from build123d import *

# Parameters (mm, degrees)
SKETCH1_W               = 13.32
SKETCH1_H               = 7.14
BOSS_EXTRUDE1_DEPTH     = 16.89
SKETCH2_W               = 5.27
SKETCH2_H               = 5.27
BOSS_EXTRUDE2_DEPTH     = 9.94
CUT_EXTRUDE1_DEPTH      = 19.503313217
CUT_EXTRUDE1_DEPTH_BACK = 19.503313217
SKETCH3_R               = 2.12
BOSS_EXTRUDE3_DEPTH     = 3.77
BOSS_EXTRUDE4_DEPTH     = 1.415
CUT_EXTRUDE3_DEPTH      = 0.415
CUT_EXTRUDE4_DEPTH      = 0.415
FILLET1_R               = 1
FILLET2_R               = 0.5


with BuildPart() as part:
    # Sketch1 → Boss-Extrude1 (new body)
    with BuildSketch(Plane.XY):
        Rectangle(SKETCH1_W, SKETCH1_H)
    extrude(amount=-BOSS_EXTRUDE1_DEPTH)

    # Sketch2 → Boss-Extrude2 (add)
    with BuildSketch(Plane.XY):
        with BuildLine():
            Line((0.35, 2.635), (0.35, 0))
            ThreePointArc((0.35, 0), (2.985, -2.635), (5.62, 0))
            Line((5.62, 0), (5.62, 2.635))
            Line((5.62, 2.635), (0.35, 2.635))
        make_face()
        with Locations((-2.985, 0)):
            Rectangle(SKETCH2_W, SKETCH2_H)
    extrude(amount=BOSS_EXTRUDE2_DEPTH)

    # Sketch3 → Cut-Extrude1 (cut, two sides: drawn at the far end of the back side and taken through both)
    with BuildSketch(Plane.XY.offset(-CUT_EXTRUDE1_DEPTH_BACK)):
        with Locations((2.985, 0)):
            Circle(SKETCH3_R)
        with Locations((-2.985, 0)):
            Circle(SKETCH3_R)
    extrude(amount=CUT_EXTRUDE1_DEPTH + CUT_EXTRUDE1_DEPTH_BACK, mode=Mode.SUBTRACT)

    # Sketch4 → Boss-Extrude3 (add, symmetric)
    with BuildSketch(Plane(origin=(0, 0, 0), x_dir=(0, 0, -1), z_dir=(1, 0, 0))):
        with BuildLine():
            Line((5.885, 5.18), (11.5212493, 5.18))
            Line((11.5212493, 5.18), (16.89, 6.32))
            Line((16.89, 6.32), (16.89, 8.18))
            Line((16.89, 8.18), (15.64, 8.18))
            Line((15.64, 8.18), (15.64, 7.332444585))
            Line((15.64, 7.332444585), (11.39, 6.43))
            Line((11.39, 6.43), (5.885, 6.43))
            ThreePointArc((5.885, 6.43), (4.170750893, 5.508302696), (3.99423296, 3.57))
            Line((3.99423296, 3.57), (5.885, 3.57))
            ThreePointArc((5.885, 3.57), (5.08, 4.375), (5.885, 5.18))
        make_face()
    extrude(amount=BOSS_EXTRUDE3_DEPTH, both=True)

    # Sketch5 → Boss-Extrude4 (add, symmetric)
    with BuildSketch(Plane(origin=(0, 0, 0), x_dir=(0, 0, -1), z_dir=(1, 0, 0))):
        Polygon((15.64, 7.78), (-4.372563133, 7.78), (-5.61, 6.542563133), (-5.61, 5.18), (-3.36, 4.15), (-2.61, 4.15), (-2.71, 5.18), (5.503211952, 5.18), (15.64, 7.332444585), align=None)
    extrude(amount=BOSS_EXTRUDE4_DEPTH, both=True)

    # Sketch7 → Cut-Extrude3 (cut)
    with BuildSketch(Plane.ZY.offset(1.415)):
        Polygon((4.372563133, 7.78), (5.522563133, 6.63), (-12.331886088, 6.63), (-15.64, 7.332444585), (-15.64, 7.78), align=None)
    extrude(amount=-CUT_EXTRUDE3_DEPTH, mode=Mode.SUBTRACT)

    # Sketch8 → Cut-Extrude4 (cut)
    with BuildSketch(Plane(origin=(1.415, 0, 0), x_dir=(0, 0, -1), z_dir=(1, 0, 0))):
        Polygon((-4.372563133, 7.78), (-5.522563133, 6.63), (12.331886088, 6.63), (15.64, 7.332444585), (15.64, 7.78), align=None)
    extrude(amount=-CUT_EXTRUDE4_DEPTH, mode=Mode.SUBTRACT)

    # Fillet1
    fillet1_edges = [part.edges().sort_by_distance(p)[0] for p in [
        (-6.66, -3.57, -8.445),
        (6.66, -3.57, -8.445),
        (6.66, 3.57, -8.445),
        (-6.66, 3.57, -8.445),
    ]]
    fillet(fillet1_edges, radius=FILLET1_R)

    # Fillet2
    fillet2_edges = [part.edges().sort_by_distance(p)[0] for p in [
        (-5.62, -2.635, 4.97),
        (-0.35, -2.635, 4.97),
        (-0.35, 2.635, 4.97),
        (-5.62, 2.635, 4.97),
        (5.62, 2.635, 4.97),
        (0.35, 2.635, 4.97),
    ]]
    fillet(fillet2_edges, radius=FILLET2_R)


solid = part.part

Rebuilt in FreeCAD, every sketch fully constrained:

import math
import FreeCAD as App
import Part
import Sketcher

V = App.Vector
Q = App.Units.Quantity


def edges_at(feature, points):
    """Names of the edges that pass closest to the given points."""
    edges = feature.Shape.Edges
    near = lambda p: min(range(len(edges)), key=lambda i: edges[i].distToShape(Part.Vertex(*p))[0])
    return sorted({f"Edge{near(p) + 1}" for p in points})


def add_polygon(sketch, points):
    """Adds a closed chain of lines whose ends are joined by coincident constraints."""
    first, n = sketch.GeometryCount, len(points)
    for a, b in zip(points, points[1:] + points[:1]):
        sketch.addGeometry(Part.LineSegment(App.Vector(*a, 0), App.Vector(*b, 0)), False)
    for i in range(n):
        sketch.addConstraint(Sketcher.Constraint("Coincident", first + i, 2, first + (i + 1) % n, 1))

doc = App.newDocument("Part")
params = doc.addObject("Spreadsheet::Sheet", "Params")
for row, (alias, value) in enumerate([
    ("sketch1_width", "13.32 mm"),
    ("sketch1_height", "7.14 mm"),
    ("pad1_length", "16.89 mm"),
    ("pad2_length", "9.94 mm"),
    ("sketch3_diameter", "4.24 mm"),
    ("sketch4_width", "1.86 mm"),
    ("sketch4_height", "1.25 mm"),
    ("pad3_length", "7.54 mm"),
    ("sketch5_height", "0.75 mm"),
    ("sketch5_length", "1.75 mm"),
    ("pad4_length", "2.83 mm"),
    ("pocket2_length", "0.415 mm"),
    ("pocket3_length", "0.415 mm"),
    ("fillet_radius", "1 mm"),
    ("fillet2_radius", "0.5 mm"),
], start=1):
    params.set(f"A{row}", alias)
    params.set(f"B{row}", "=" + value)
    params.setAlias(f"B{row}", alias)

body = doc.addObject("PartDesign::Body", "Body")

# Sketch on XY plane
sketch1 = body.newObject("Sketcher::SketchObject", "Sketch")
sketch1.AttachmentSupport = (doc.getObject("XY_Plane"), [""])
sketch1.MapMode = "FlatFace"
add_polygon(sketch1, [(-7, 4), (-7, -4), (7, -4), (7, 4)])  # lines 0-3
sketch1.addConstraint(Sketcher.Constraint("Vertical", 0))
sketch1.addConstraint(Sketcher.Constraint("Horizontal", 1))
sketch1.addConstraint(Sketcher.Constraint("Vertical", 2))
sketch1.addConstraint(Sketcher.Constraint("Horizontal", 3))
sketch1.addConstraint(Sketcher.Constraint("Symmetric", 0, 2, 2, 2, -1, 1))
sketch1.addConstraint(Sketcher.Constraint("DistanceX", 1, 1, 1, 2, 13.32))
sketch1.addConstraint(Sketcher.Constraint("DistanceY", 0, 2, 0, 1, 7.14))
sketch1.setExpression("Constraints[9]", "Params.sketch1_width")
sketch1.setExpression("Constraints[10]", "Params.sketch1_height")
pad1 = body.newObject("PartDesign::Pad", "Pad")
pad1.Profile = sketch1
pad1.setExpression("Length", "Params.pad1_length")
pad1.Reversed = True

# Sketch on XY plane
sketch2 = body.newObject("Sketcher::SketchObject", "Sketch001")
sketch2.AttachmentSupport = (doc.getObject("XY_Plane"), [""])
sketch2.MapMode = "FlatFace"
sketch2.addGeometry(Part.LineSegment(V(0.3, 2.6, 0), V(0.3, 0, 0)), False)  # 0
sketch2.addGeometry(Part.ArcOfCircle(Part.Circle(V(3, 0, 0), V(0, 0, 1), 2.6), math.radians(180), math.radians(360)), False)  # 1
sketch2.addGeometry(Part.LineSegment(V(5.6, 0, 0), V(5.6, 2.6, 0)), False)  # 2
sketch2.addGeometry(Part.LineSegment(V(5.6, 2.6, 0), V(0.3, 2.6, 0)), False)  # 3
add_polygon(sketch2, [(-5.6, 2.6), (-5.6, -2.6), (-0.3, -2.6), (-0.3, 2.6)])  # lines 4-7
sketch2.addConstraint(Sketcher.Constraint("Tangent", 0, 2, 1, 1))
sketch2.addConstraint(Sketcher.Constraint("Tangent", 1, 2, 2, 1))
sketch2.addConstraint(Sketcher.Constraint("Coincident", 2, 2, 3, 1))
sketch2.addConstraint(Sketcher.Constraint("Coincident", 3, 2, 0, 1))
sketch2.addConstraint(Sketcher.Constraint("Vertical", 0))
sketch2.addConstraint(Sketcher.Constraint("Vertical", 2))
sketch2.addConstraint(Sketcher.Constraint("Horizontal", 3))
sketch2.addConstraint(Sketcher.Constraint("Vertical", 4))
sketch2.addConstraint(Sketcher.Constraint("Horizontal", 5))
sketch2.addConstraint(Sketcher.Constraint("Vertical", 6))
sketch2.addConstraint(Sketcher.Constraint("Horizontal", 7))
sketch2.addConstraint(Sketcher.Constraint("Symmetric", 2, 2, 4, 2, -1, 1))
sketch2.addConstraint(Sketcher.Constraint("Symmetric", 3, 2, 6, 2, -2))
sketch2.addConstraint(Sketcher.Constraint("PointOnObject", 1, 3, -1))
sketch2.addConstraint(Sketcher.Constraint("Equal", 7, 4))
sketch2.addConstraint(Sketcher.Constraint("Radius", 1, 2.635))
sketch2.addConstraint(Sketcher.Constraint("DistanceX", 5, 2, 0, 2, 0.7))
pad2 = body.newObject("PartDesign::Pad", "Pad001")
pad2.Profile = sketch2
pad2.setExpression("Length", "Params.pad2_length")

# Sketch on XY plane
sketch3 = body.newObject("Sketcher::SketchObject", "Sketch002")
sketch3.AttachmentSupport = (doc.getObject("XY_Plane"), [""])
sketch3.MapMode = "FlatFace"
sketch3.addGeometry(Part.Circle(V(3, 0, 0), V(0, 0, 1), 2.1), False)
sketch3.addGeometry(Part.Circle(V(-3, 0, 0), V(0, 0, 1), 2.1), False)
sketch3.addConstraint(Sketcher.Constraint("Equal", 0, 1))
sketch3.addConstraint(Sketcher.Constraint("Symmetric", 0, 3, 1, 3, -1, 1))
sketch3.addConstraint(Sketcher.Constraint("PointOnObject", 0, 3, -1))
sketch3.addConstraint(Sketcher.Constraint("Diameter", 0, 4.24))
sketch3.addConstraint(Sketcher.Constraint("DistanceX", 1, 3, 0, 3, 5.97))
sketch3.setExpression("Constraints[3]", "Params.sketch3_diameter")
pocket1 = body.newObject("PartDesign::Pocket", "Pocket")
pocket1.Profile = sketch3
pocket1.Type = "ThroughAll"
pocket1.Midplane = True

# Sketch on YZ plane
sketch4 = body.newObject("Sketcher::SketchObject", "Sketch003")
sketch4.AttachmentSupport = (doc.getObject("YZ_Plane"), [""])
sketch4.MapMode = "FlatFace"
sketch4.addGeometry(Part.LineSegment(V(5.2, -5.9, 0), V(5.2, -11.5, 0)), False)
sketch4.addGeometry(Part.LineSegment(V(5.2, -11.5, 0), V(6.3, -16.9, 0)), False)
sketch4.addGeometry(Part.LineSegment(V(6.3, -16.9, 0), V(8.2, -16.9, 0)), False)
sketch4.addGeometry(Part.LineSegment(V(8.2, -16.9, 0), V(8.2, -15.6, 0)), False)
sketch4.addGeometry(Part.LineSegment(V(8.2, -15.6, 0), V(7.3, -15.6, 0)), False)
sketch4.addGeometry(Part.LineSegment(V(7.3, -15.6, 0), V(6.4, -11.4, 0)), False)
sketch4.addGeometry(Part.LineSegment(V(6.4, -11.4, 0), V(6.4, -5.9, 0)), False)
sketch4.addGeometry(Part.ArcOfCircle(Part.Circle(V(4.4, -5.9, 0), V(0, 0, 1), 2.1), math.radians(0), math.radians(113)), False)
sketch4.addGeometry(Part.LineSegment(V(3.6, -4, 0), V(3.6, -5.9, 0)), False)
sketch4.addGeometry(Part.ArcOfCircle(Part.Circle(V(4.4, -5.9, 0), V(0, 0, 1), 0.8), math.radians(0), math.radians(180)), False)
sketch4.addConstraint(Sketcher.Constraint("Coincident", 0, 2, 1, 1))
sketch4.addConstraint(Sketcher.Constraint("Coincident", 1, 2, 2, 1))
sketch4.addConstraint(Sketcher.Constraint("Coincident", 2, 2, 3, 1))
sketch4.addConstraint(Sketcher.Constraint("Coincident", 3, 2, 4, 1))
sketch4.addConstraint(Sketcher.Constraint("Coincident", 4, 2, 5, 1))
sketch4.addConstraint(Sketcher.Constraint("Coincident", 5, 2, 6, 1))
sketch4.addConstraint(Sketcher.Constraint("Tangent", 6, 2, 7, 1))
sketch4.addConstraint(Sketcher.Constraint("Coincident", 7, 2, 8, 1))
sketch4.addConstraint(Sketcher.Constraint("Tangent", 8, 2, 9, 2))
sketch4.addConstraint(Sketcher.Constraint("Tangent", 9, 1, 0, 1))
sketch4.addConstraint(Sketcher.Constraint("Vertical", 0))
sketch4.addConstraint(Sketcher.Constraint("Horizontal", 2))
sketch4.addConstraint(Sketcher.Constraint("Vertical", 3))
sketch4.addConstraint(Sketcher.Constraint("Horizontal", 4))
sketch4.addConstraint(Sketcher.Constraint("Vertical", 6))
sketch4.addConstraint(Sketcher.Constraint("Vertical", 8))
sketch4.addConstraint(Sketcher.Constraint("Coincident", 9, 3, 7, 3))
sketch4.addConstraint(Sketcher.Constraint("Parallel", 1, 5))
sketch4.addConstraint(Sketcher.Constraint("Radius", 7, 2.055))
sketch4.addConstraint(Sketcher.Constraint("Radius", 9, 0.805))
sketch4.addConstraint(Sketcher.Constraint("DistanceX", 0, 2, 2, 2, 3.0))
sketch4.addConstraint(Sketcher.Constraint("DistanceX", 2, 1, 2, 2, 1.86))
sketch4.addConstraint(Sketcher.Constraint("DistanceY", 3, 1, 3, 2, 1.25))
sketch4.addConstraint(Sketcher.Constraint("DistanceY", 1, 2, 5, 2, 5.5))
sketch4.addConstraint(Sketcher.Constraint("DistanceY", 6, 1, 6, 2, 5.505))
sketch4.addConstraint(Sketcher.Constraint("DistanceX", -1, 1, 0, 2, 5.18))
sketch4.addConstraint(Sketcher.Constraint("DistanceY", 1, 2, -1, 1, 16.89))
sketch4.addConstraint(Sketcher.Constraint("DistanceY", 0, 2, 0, 1, 5.636249))
sketch4.setExpression("Constraints[21]", "Params.sketch4_width")
sketch4.setExpression("Constraints[22]", "Params.sketch4_height")
pad3 = body.newObject("PartDesign::Pad", "Pad002")
pad3.Profile = sketch4
pad3.setExpression("Length", "Params.pad3_length")
pad3.Midplane = True

# Sketch on YZ plane
sketch5 = body.newObject("Sketcher::SketchObject", "Sketch004")
sketch5.AttachmentSupport = (doc.getObject("YZ_Plane"), [""])
sketch5.MapMode = "FlatFace"
add_polygon(sketch5, [(7.78, -15.64), (7.78, 4.37), (6.54, 5.61), (5.18, 5.61), (4.15, 3.36), (4.15, 2.61), (5.18, 2.71), (5.18, -5.5), (7.33, -15.64)])  # lines 0-8
sketch5.addConstraint(Sketcher.Constraint("Vertical", 0))
sketch5.addConstraint(Sketcher.Constraint("Horizontal", 2))
sketch5.addConstraint(Sketcher.Constraint("Vertical", 4))
sketch5.addConstraint(Sketcher.Constraint("Vertical", 6))
sketch5.addConstraint(Sketcher.Constraint("Horizontal", 8))
sketch5.addConstraint(Sketcher.Constraint("Vertical", 2, 2, 5, 2))
sketch5.addConstraint(Sketcher.Constraint("Angle", 1, Q("135 deg")))
sketch5.addConstraint(Sketcher.Constraint("DistanceY", 4, 2, 2, 2, 3.0))
sketch5.addConstraint(Sketcher.Constraint("DistanceY", 7, 2, 3, 2, 19.0))
sketch5.addConstraint(Sketcher.Constraint("DistanceY", 4, 2, 4, 1, 0.75))
sketch5.addConstraint(Sketcher.Constraint("DistanceX", 2, 2, 0, 2, 2.6))
sketch5.addConstraint(Sketcher.Constraint("DistanceY", 4, 2, 5, 2, 0.1))
sketch5.addConstraint(Sketcher.Constraint("Distance", 1, 1.75))
sketch5.addConstraint(Sketcher.Constraint("DistanceX", -1, 1, 0, 2, 7.78))
sketch5.addConstraint(Sketcher.Constraint("DistanceY", -1, 1, 1, 2, 5.61))
sketch5.addConstraint(Sketcher.Constraint("DistanceX", -1, 1, 3, 2, 4.15))
sketch5.addConstraint(Sketcher.Constraint("DistanceY", 6, 2, 6, 1, 8.213212))
sketch5.addConstraint(Sketcher.Constraint("DistanceX", 8, 1, 8, 2, 0.447555))
sketch5.setExpression("Constraints[18]", "Params.sketch5_height")
sketch5.setExpression("Constraints[21]", "Params.sketch5_length")
pad4 = body.newObject("PartDesign::Pad", "Pad003")
pad4.Profile = sketch5
pad4.setExpression("Length", "Params.pad4_length")
pad4.Midplane = True

# Sketch on YZ plane
sketch6 = body.newObject("Sketcher::SketchObject", "Sketch005")
sketch6.AttachmentSupport = (doc.getObject("YZ_Plane"), [""])
sketch6.MapMode = "FlatFace"
sketch6.AttachmentOffset = App.Placement(V(0, 0, -1.415), App.Rotation())
add_polygon(sketch6, [(6.63, 5.52), (7.78, 4.37), (7.78, -15.64), (7.33, -15.64), (6.63, -12.33)])  # lines 0-4
sketch6.addConstraint(Sketcher.Constraint("Vertical", 1))
sketch6.addConstraint(Sketcher.Constraint("Horizontal", 2))
sketch6.addConstraint(Sketcher.Constraint("Vertical", 4))
sketch6.addConstraint(Sketcher.Constraint("Angle", 0, Q("-45 deg")))
sketch6.addConstraint(Sketcher.Constraint("DistanceX", -1, 1, 0, 2, 7.78))
sketch6.addConstraint(Sketcher.Constraint("DistanceY", 1, 2, -1, 1, 15.64))
sketch6.addConstraint(Sketcher.Constraint("DistanceX", -1, 1, 3, 2, 6.63))
sketch6.addConstraint(Sketcher.Constraint("DistanceY", 4, 1, 4, 2, 17.854449))
sketch6.addConstraint(Sketcher.Constraint("Distance", 3, 3.38187))
sketch6.addConstraint(Sketcher.Constraint("DistanceX", 2, 2, 2, 1, 0.447555))
pocket2 = body.newObject("PartDesign::Pocket", "Pocket001")
pocket2.Profile = sketch6
pocket2.setExpression("Length", "Params.pocket2_length")
pocket2.Reversed = True

# Sketch on YZ plane
sketch7 = body.newObject("Sketcher::SketchObject", "Sketch006")
sketch7.AttachmentSupport = (doc.getObject("YZ_Plane"), [""])
sketch7.MapMode = "FlatFace"
sketch7.AttachmentOffset = App.Placement(V(0, 0, 1.415), App.Rotation())
add_polygon(sketch7, [(7.78, 4.37), (6.63, 5.52), (6.63, -12.33), (7.33, -15.64), (7.78, -15.64)])  # lines 0-4
sketch7.addConstraint(Sketcher.Constraint("Vertical", 1))
sketch7.addConstraint(Sketcher.Constraint("Horizontal", 3))
sketch7.addConstraint(Sketcher.Constraint("Vertical", 4))
sketch7.addConstraint(Sketcher.Constraint("Angle", 0, Q("135 deg")))
sketch7.addConstraint(Sketcher.Constraint("DistanceX", -1, 1, 0, 2, 6.63))
sketch7.addConstraint(Sketcher.Constraint("DistanceY", 2, 2, -1, 1, 15.64))
sketch7.addConstraint(Sketcher.Constraint("DistanceX", -1, 1, 3, 2, 7.78))
sketch7.addConstraint(Sketcher.Constraint("DistanceY", 1, 2, 1, 1, 17.854449))
sketch7.addConstraint(Sketcher.Constraint("Distance", 2, 3.38187))
sketch7.addConstraint(Sketcher.Constraint("DistanceX", 3, 1, 3, 2, 0.447555))
pocket3 = body.newObject("PartDesign::Pocket", "Pocket002")
pocket3.Profile = sketch7
pocket3.setExpression("Length", "Params.pocket3_length")
doc.recompute()

fillet = body.newObject("PartDesign::Fillet", "Fillet")
fillet.Base = (pocket3, edges_at(pocket3, [
    (-6.66, -3.57, -8.445),
    (6.66, -3.57, -8.445),
    (6.66, 3.57, -8.445),
    (-6.66, 3.57, -8.445),
]))
fillet.setExpression("Radius", "Params.fillet_radius")
doc.recompute()

fillet2 = body.newObject("PartDesign::Fillet", "Fillet001")
fillet2.Base = (fillet, edges_at(fillet, [
    (-5.62, -2.635, 4.97),
    (-0.35, -2.635, 4.97),
    (-0.35, 2.635, 4.97),
    (-5.62, 2.635, 4.97),
    (5.62, 2.635, 4.97),
    (0.35, 2.635, 4.97),
]))
fillet2.setExpression("Radius", "Params.fillet2_radius")

doc.recompute()
